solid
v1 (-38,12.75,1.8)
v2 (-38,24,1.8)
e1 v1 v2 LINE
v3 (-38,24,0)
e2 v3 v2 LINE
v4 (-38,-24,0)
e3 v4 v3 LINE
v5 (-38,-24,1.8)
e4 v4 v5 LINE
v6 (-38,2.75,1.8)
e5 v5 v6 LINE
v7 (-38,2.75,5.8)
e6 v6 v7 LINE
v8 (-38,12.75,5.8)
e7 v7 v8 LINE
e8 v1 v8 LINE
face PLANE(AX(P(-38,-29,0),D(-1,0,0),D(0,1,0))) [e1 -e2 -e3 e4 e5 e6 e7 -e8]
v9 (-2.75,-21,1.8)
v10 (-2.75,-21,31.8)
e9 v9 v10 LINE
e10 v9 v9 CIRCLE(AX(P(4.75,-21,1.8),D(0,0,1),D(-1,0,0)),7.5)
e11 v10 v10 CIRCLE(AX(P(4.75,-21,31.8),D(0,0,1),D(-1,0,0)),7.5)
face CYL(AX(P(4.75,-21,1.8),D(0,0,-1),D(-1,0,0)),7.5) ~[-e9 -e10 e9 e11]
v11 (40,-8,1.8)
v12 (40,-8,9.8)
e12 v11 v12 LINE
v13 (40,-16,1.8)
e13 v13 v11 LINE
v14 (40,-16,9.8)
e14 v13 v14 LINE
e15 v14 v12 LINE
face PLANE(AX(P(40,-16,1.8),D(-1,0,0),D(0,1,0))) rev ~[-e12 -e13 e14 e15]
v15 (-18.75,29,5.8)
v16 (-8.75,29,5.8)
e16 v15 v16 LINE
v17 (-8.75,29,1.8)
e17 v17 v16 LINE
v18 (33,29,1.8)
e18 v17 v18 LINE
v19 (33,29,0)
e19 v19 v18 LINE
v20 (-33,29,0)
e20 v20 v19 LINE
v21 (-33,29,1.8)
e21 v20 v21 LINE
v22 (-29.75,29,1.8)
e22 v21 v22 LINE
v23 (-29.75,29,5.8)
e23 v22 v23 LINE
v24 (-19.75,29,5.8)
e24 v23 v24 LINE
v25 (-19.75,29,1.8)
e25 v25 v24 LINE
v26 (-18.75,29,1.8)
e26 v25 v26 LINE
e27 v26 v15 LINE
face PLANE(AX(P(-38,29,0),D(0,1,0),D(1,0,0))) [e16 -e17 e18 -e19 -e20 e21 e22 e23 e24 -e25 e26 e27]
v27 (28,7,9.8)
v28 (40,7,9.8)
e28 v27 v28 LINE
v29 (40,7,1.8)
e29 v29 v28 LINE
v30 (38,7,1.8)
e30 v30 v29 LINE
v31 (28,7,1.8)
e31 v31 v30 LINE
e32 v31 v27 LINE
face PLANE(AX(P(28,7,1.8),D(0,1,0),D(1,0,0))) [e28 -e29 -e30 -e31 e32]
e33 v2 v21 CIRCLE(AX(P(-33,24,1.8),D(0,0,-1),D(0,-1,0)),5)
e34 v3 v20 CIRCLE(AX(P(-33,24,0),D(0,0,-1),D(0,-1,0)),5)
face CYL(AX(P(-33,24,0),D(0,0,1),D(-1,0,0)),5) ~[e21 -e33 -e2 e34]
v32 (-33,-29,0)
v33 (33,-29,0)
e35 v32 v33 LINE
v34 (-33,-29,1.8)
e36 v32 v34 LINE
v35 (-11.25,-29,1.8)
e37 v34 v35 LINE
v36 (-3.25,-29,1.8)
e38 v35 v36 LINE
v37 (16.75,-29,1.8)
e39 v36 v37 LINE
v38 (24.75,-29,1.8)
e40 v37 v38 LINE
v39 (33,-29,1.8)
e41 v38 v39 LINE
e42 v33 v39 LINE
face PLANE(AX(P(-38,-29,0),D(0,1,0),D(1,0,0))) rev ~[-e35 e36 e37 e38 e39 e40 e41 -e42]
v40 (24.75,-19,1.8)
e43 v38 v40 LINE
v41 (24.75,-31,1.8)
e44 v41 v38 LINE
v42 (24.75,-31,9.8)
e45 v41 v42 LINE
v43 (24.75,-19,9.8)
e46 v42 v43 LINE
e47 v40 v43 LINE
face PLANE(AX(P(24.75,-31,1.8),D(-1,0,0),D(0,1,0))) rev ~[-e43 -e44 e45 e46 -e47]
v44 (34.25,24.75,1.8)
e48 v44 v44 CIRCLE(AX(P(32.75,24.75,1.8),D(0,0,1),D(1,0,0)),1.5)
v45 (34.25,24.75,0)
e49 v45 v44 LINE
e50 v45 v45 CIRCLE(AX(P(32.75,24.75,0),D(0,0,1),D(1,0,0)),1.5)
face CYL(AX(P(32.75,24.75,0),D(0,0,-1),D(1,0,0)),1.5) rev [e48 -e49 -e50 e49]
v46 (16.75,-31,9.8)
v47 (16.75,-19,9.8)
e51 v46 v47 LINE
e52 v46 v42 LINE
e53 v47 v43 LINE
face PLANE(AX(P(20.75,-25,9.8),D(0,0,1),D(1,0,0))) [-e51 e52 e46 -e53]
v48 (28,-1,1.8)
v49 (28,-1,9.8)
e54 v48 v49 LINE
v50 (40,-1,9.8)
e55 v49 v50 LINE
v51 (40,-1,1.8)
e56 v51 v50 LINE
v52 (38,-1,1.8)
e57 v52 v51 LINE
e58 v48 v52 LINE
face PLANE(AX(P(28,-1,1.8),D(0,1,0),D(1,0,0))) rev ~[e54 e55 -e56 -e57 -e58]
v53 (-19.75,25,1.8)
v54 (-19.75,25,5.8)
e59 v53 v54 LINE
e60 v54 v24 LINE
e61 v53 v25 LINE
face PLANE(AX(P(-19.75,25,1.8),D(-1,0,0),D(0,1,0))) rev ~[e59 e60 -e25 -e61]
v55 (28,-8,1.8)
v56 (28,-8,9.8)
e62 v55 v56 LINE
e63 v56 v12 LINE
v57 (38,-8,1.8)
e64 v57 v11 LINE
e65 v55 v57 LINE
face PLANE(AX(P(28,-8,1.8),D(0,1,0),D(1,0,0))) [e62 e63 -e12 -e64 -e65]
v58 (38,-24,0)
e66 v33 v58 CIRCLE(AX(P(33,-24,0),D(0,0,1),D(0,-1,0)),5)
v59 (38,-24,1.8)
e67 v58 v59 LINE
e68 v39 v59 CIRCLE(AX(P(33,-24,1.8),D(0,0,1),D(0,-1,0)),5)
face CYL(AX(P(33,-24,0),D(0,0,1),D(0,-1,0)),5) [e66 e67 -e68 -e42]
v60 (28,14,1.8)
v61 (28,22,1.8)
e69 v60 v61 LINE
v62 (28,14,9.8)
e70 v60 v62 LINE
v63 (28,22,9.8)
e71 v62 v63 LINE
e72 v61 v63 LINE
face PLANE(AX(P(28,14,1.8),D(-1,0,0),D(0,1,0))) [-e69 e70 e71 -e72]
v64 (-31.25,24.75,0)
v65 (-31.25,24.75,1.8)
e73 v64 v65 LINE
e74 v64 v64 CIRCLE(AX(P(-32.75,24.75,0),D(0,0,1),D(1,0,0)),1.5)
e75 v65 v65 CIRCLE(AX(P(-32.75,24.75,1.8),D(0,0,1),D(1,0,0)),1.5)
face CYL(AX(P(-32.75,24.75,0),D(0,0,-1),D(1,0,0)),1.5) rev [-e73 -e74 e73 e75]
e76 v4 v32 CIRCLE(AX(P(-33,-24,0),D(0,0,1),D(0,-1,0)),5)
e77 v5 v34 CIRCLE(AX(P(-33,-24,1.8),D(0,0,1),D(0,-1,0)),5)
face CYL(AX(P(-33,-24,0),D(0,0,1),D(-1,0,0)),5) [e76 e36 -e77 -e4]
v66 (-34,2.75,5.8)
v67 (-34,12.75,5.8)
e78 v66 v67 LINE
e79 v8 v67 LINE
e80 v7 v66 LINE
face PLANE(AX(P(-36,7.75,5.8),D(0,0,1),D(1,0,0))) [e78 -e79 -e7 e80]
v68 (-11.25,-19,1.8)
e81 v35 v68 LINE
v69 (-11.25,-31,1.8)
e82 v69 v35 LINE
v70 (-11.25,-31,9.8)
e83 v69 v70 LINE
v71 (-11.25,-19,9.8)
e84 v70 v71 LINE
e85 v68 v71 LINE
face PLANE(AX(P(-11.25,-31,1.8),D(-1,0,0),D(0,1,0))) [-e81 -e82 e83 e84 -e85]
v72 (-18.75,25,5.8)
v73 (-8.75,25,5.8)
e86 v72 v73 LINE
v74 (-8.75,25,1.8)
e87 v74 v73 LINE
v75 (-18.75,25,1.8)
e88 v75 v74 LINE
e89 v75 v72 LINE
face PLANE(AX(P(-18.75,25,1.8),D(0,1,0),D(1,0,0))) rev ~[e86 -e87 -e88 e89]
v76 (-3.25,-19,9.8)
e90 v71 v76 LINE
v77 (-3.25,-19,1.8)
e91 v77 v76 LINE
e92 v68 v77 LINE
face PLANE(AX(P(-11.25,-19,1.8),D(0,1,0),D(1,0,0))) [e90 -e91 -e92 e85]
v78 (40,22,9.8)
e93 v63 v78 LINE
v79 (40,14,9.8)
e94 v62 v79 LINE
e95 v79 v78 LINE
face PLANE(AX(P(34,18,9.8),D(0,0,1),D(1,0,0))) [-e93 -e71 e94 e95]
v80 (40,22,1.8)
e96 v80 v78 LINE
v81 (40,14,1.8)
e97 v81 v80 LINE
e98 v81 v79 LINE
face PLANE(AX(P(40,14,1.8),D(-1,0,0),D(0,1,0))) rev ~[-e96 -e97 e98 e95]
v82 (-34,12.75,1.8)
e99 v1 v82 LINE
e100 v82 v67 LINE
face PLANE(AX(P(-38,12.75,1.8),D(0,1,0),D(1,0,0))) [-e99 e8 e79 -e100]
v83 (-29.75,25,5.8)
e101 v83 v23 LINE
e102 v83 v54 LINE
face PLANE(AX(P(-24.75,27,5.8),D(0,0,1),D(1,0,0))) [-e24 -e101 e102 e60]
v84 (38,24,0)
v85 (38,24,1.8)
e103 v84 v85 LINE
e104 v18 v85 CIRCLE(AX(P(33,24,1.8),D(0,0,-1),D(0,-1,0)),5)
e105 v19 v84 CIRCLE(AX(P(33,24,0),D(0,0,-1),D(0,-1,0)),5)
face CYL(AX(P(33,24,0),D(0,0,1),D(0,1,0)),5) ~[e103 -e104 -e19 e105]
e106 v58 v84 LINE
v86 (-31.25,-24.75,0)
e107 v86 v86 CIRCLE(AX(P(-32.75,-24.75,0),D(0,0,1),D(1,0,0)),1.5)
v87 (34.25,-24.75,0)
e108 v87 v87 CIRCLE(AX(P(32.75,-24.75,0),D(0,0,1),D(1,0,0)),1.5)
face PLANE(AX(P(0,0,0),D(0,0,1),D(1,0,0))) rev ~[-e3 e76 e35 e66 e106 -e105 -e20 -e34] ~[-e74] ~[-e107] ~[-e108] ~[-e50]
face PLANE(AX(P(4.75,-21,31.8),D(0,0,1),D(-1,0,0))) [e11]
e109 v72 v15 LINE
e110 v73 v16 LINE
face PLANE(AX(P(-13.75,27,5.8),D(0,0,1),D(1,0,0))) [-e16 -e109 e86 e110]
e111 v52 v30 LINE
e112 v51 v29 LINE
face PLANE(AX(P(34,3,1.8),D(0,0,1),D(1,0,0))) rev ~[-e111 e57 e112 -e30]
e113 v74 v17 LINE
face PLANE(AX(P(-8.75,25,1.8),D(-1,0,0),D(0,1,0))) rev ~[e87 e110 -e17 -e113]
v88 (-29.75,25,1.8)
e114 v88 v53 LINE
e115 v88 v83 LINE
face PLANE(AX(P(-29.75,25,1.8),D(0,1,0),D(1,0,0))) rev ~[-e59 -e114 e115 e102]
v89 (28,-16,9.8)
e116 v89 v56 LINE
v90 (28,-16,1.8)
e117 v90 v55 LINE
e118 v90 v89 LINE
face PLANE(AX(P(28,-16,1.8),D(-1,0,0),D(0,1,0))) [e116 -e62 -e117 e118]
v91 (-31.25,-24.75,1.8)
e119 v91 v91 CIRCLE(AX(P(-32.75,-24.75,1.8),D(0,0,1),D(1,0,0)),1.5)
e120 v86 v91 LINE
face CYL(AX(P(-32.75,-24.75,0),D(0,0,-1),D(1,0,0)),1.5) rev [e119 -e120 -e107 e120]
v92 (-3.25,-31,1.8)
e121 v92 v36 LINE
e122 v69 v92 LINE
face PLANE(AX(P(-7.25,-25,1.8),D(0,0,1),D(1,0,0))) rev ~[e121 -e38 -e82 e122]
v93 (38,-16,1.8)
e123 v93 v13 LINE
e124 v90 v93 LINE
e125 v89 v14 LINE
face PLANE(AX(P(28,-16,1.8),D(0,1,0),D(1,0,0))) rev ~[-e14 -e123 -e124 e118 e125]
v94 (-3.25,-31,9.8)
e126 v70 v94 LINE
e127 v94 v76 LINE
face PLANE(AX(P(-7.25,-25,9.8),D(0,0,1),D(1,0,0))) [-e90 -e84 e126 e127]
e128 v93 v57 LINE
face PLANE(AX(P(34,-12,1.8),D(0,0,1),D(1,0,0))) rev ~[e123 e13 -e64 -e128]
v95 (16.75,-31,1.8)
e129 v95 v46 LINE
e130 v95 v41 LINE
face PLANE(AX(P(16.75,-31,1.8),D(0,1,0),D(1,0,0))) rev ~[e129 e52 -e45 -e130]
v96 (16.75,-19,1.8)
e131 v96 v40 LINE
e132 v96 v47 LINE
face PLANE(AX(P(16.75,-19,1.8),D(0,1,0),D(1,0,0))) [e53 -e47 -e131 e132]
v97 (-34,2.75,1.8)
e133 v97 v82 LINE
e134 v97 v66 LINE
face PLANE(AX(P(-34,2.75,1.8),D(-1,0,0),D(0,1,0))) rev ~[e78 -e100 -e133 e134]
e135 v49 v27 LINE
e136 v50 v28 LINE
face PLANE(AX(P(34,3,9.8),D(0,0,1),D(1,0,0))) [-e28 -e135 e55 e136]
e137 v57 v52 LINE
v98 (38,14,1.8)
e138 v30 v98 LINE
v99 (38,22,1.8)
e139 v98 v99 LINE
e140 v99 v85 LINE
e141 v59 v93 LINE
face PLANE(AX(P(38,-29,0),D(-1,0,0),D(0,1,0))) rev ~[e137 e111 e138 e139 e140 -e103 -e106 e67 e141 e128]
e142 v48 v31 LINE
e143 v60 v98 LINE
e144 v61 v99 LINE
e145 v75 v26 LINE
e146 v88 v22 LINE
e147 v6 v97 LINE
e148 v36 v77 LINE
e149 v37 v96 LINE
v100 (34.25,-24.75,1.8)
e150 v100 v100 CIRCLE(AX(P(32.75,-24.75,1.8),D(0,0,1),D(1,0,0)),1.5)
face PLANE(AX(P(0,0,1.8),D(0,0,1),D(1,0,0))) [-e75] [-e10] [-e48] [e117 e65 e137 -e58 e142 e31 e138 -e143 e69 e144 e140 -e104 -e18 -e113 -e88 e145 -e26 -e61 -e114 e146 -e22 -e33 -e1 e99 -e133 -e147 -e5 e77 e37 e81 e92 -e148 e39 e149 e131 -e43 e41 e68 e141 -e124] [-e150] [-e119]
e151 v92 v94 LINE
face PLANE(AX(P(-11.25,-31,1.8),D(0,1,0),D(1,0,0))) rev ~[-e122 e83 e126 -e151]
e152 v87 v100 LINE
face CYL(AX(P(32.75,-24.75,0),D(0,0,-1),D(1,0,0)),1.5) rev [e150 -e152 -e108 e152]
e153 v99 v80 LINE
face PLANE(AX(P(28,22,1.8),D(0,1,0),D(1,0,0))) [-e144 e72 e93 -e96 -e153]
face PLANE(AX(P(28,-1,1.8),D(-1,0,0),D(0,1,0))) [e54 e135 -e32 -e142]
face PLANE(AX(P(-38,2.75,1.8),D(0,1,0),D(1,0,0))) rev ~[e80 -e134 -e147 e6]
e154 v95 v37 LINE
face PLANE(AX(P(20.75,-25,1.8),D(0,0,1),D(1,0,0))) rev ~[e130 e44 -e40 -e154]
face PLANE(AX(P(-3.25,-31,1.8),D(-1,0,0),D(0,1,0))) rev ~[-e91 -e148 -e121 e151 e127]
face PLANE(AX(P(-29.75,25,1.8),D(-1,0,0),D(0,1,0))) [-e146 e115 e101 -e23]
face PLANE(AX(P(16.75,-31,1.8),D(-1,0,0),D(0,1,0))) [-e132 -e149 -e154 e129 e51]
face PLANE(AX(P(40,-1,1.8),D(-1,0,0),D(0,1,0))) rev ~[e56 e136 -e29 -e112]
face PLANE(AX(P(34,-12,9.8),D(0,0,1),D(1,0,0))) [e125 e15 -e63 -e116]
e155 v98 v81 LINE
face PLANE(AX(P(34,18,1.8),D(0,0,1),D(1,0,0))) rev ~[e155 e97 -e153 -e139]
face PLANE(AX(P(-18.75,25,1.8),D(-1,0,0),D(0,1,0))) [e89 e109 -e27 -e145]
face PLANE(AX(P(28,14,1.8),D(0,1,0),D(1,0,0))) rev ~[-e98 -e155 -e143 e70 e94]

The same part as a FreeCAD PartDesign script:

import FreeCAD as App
import Part
import Sketcher
from FreeCAD import Vector
Q = App.Units.Quantity


def edges_at(feature, points):
    """Names of the edges that pass closest to the given points."""
    edges = feature.Shape.Edges
    near = lambda p: min(range(len(edges)), key=lambda i: edges[i].distToShape(Part.Vertex(*p))[0])
    return sorted({f"Edge{near(p) + 1}" for p in points})

doc = App.newDocument("Part")
body = doc.addObject("PartDesign::Body", "Body")

sketch1 = doc.addObject("Sketcher::SketchObject", "Sketch")
body.addObject(sketch1)
sketch1.AttachmentSupport = (doc.XY_Plane, [""])
sketch1.MapMode = "FlatFace"
sketch1.addGeometry([
    Part.LineSegment(Vector(-38, 29, 0), Vector(-38, -29, 0)),
    Part.LineSegment(Vector(-38, -29, 0), Vector(38, -29, 0)),
    Part.LineSegment(Vector(38, -29, 0), Vector(38, 29, 0)),
    Part.LineSegment(Vector(38, 29, 0), Vector(-38, 29, 0)),
    Part.Circle(Vector(-32.75, -24.75, 0), Vector(0, 0, 1), 1.5),
    Part.Circle(Vector(32.75, -24.75, 0), Vector(0, 0, 1), 1.5),
    Part.Circle(Vector(-32.75, 24.75, 0), Vector(0, 0, 1), 1.5),
    Part.Circle(Vector(32.75, 24.75, 0), Vector(0, 0, 1), 1.5),
], False)
sketch1.addConstraint([
    Sketcher.Constraint("Coincident", 0, 2, 1, 1),
    Sketcher.Constraint("Coincident", 1, 2, 2, 1),
    Sketcher.Constraint("Coincident", 2, 2, 3, 1),
    Sketcher.Constraint("Coincident", 3, 2, 0, 1),
    Sketcher.Constraint("Vertical", 0),
    Sketcher.Constraint("Horizontal", 1),
    Sketcher.Constraint("Vertical", 2),
    Sketcher.Constraint("Horizontal", 3),
    Sketcher.Constraint("Equal", 4, 5),
    Sketcher.Constraint("Equal", 5, 6),
    Sketcher.Constraint("Equal", 6, 7),
    Sketcher.Constraint("Symmetric", 5, 3, 6, 3, -1, 1),
    Sketcher.Constraint("Symmetric", 4, 3, 7, 3, -1, 1),
    Sketcher.Constraint("Symmetric", 0, 2, 2, 2, -1, 1),
    Sketcher.Constraint("Symmetric", 4, 3, 5, 3, -2),
    Sketcher.Constraint("Diameter", 4, Q("3 mm")),
    Sketcher.Constraint("DistanceX", 1, 1, 1, 2, Q("76 mm")),
    Sketcher.Constraint("DistanceY", 0, 2, 0, 1, Q("58 mm")),
    Sketcher.Constraint("DistanceX", 4, 3, 5, 3, Q("65.5 mm")),
    Sketcher.Constraint("DistanceY", 4, 3, 6, 3, Q("49.5 mm")),
])
pad1 = doc.addObject("PartDesign::Pad", "Pad")
body.addObject(pad1)
pad1.Profile = sketch1
pad1.Length = 1.8

sketch2 = doc.addObject("Sketcher::SketchObject", "Sketch001")
body.addObject(sketch2)
sketch2.AttachmentSupport = (doc.XY_Plane, [""])
sketch2.MapMode = "FlatFace"
sketch2.AttachmentOffset = App.Placement(Vector(0, 0, 1.8), App.Rotation())
sketch2.addGeometry([
    Part.LineSegment(Vector(28, 22, 0), Vector(28, 14, 0)),
    Part.LineSegment(Vector(28, 14, 0), Vector(40, 14, 0)),
    Part.LineSegment(Vector(40, 14, 0), Vector(40, 22, 0)),
    Part.LineSegment(Vector(40, 22, 0), Vector(28, 22, 0)),
    Part.LineSegment(Vector(28, 7, 0), Vector(28, -1, 0)),
    Part.LineSegment(Vector(28, -1, 0), Vector(40, -1, 0)),
    Part.LineSegment(Vector(40, -1, 0), Vector(40, 7, 0)),
    Part.LineSegment(Vector(40, 7, 0), Vector(28, 7, 0)),
    Part.LineSegment(Vector(28, -8, 0), Vector(28, -16, 0)),
    Part.LineSegment(Vector(28, -16, 0), Vector(40, -16, 0)),
    Part.LineSegment(Vector(40, -16, 0), Vector(40, -8, 0)),
    Part.LineSegment(Vector(40, -8, 0), Vector(28, -8, 0)),
    Part.LineSegment(Vector(-11.25, -19, 0), Vector(-11.25, -31, 0)),
    Part.LineSegment(Vector(-11.25, -31, 0), Vector(-3.25, -31, 0)),
    Part.LineSegment(Vector(-3.25, -31, 0), Vector(-3.25, -19, 0)),
    Part.LineSegment(Vector(-3.25, -19, 0), Vector(-11.25, -19, 0)),
    Part.LineSegment(Vector(16.75, -19, 0), Vector(16.75, -31, 0)),
    Part.LineSegment(Vector(16.75, -31, 0), Vector(24.75, -31, 0)),
    Part.LineSegment(Vector(24.75, -31, 0), Vector(24.75, -19, 0)),
    Part.LineSegment(Vector(24.75, -19, 0), Vector(16.75, -19, 0)),
], False)
sketch2.addConstraint([
    Sketcher.Constraint("Coincident", 0, 2, 1, 1),
    Sketcher.Constraint("Coincident", 1, 2, 2, 1),
    Sketcher.Constraint("Coincident", 2, 2, 3, 1),
    Sketcher.Constraint("Coincident", 3, 2, 0, 1),
    Sketcher.Constraint("Coincident", 4, 2, 5, 1),
    Sketcher.Constraint("Coincident", 5, 2, 6, 1),
    Sketcher.Constraint("Coincident", 6, 2, 7, 1),
    Sketcher.Constraint("Coincident", 7, 2, 4, 1),
    Sketcher.Constraint("Coincident", 8, 2, 9, 1),
    Sketcher.Constraint("Coincident", 9, 2, 10, 1),
    Sketcher.Constraint("Coincident", 10, 2, 11, 1),
    Sketcher.Constraint("Coincident", 11, 2, 8, 1),
    Sketcher.Constraint("Coincident", 12, 2, 13, 1),
    Sketcher.Constraint("Coincident", 13, 2, 14, 1),
    Sketcher.Constraint("Coincident", 14, 2, 15, 1),
    Sketcher.Constraint("Coincident", 15, 2, 12, 1),
    Sketcher.Constraint("Coincident", 16, 2, 17, 1),
    Sketcher.Constraint("Coincident", 17, 2, 18, 1),
    Sketcher.Constraint("Coincident", 18, 2, 19, 1),
    Sketcher.Constraint("Coincident", 19, 2, 16, 1),
    Sketcher.Constraint("Vertical", 0),
    Sketcher.Constraint("Horizontal", 1),
    Sketcher.Constraint("Vertical", 2),
    Sketcher.Constraint("Horizontal", 3),
    Sketcher.Constraint("Vertical", 4),
    Sketcher.Constraint("Horizontal", 5),
    Sketcher.Constraint("Vertical", 6),
    Sketcher.Constraint("Horizontal", 7),
    Sketcher.Constraint("Vertical", 8),
    Sketcher.Constraint("Horizontal", 9),
    Sketcher.Constraint("Vertical", 10),
    Sketcher.Constraint("Horizontal", 11),
    Sketcher.Constraint("Vertical", 12),
    Sketcher.Constraint("Horizontal", 13),
    Sketcher.Constraint("Vertical", 14),
    Sketcher.Constraint("Horizontal", 15),
    Sketcher.Constraint("Vertical", 16),
    Sketcher.Constraint("Horizontal", 17),
    Sketcher.Constraint("Vertical", 18),
    Sketcher.Constraint("Horizontal", 19),
    Sketcher.Constraint("Horizontal", 13, 2, 16, 2),
    Sketcher.Constraint("Horizontal", 15, 2, 18, 2),
    Sketcher.Constraint("Vertical", 3, 2, 4, 2),
    Sketcher.Constraint("Vertical", 2, 2, 5, 2),
    Sketcher.Constraint("Vertical", 7, 2, 8, 2),
    Sketcher.Constraint("Vertical", 6, 2, 9, 2),
    Sketcher.Constraint("Equal", 15, 17),
    Sketcher.Constraint("Equal", 19, 0),
    Sketcher.Constraint("Equal", 2, 4),
    Sketcher.Constraint("Equal", 6, 8),
    Sketcher.Constraint("Equal", 11, 12),
    Sketcher.Constraint("DistanceX", 1, 1, 1, 2, Q("12 mm")),
    Sketcher.Constraint("DistanceX", 13, 1, 13, 2, Q("8 mm")),
    Sketcher.Constraint("DistanceX", -1, 1, 0, 2, Q("28 mm")),
    Sketcher.Constraint("DistanceY", -1, 1, 0, 2, Q("14 mm")),
    Sketcher.Constraint("DistanceY", 4, 2, -1, 1, Q("1 mm")),
    Sketcher.Constraint("DistanceY", 8, 2, -1, 1, Q("16 mm")),
    Sketcher.Constraint("DistanceY", 12, 2, -1, 1, Q("31 mm")),
    Sketcher.Constraint("DistanceX", 13, 2, 16, 2, Q("20 mm")),
    Sketcher.Constraint("DistanceX", 12, 2, -1, 1, Q("11.25 mm")),
])
pad2 = doc.addObject("PartDesign::Pad", "Pad001")
body.addObject(pad2)
pad2.Profile = sketch2
pad2.Length = 8

sketch3 = doc.addObject("Sketcher::SketchObject", "Sketch002")
body.addObject(sketch3)
sketch3.AttachmentSupport = (doc.XY_Plane, [""])
sketch3.MapMode = "FlatFace"
sketch3.AttachmentOffset = App.Placement(Vector(0, 0, 1.8), App.Rotation())
sketch3.addGeometry([
    Part.LineSegment(Vector(-29.75, 29, 0), Vector(-29.75, 25, 0)),
    Part.LineSegment(Vector(-29.75, 25, 0), Vector(-19.75, 25, 0)),
    Part.LineSegment(Vector(-19.75, 25, 0), Vector(-19.75, 29, 0)),
    Part.LineSegment(Vector(-19.75, 29, 0), Vector(-29.75, 29, 0)),
    Part.LineSegment(Vector(-18.75, 29, 0), Vector(-18.75, 25, 0)),
    Part.LineSegment(Vector(-18.75, 25, 0), Vector(-8.75, 25, 0)),
    Part.LineSegment(Vector(-8.75, 25, 0), Vector(-8.75, 29, 0)),
    Part.LineSegment(Vector(-8.75, 29, 0), Vector(-18.75, 29, 0)),
    Part.LineSegment(Vector(-38, 12.75, 0), Vector(-38, 2.75, 0)),
    Part.LineSegment(Vector(-38, 2.75, 0), Vector(-34, 2.75, 0)),
    Part.LineSegment(Vector(-34, 2.75, 0), Vector(-34, 12.75, 0)),
    Part.LineSegment(Vector(-34, 12.75, 0), Vector(-38, 12.75, 0)),
], False)
sketch3.addConstraint([
    Sketcher.Constraint("Coincident", 0, 2, 1, 1),
    Sketcher.Constraint("Coincident", 1, 2, 2, 1),
    Sketcher.Constraint("Coincident", 2, 2, 3, 1),
    Sketcher.Constraint("Coincident", 3, 2, 0, 1),
    Sketcher.Constraint("Coincident", 4, 2, 5, 1),
    Sketcher.Constraint("Coincident", 5, 2, 6, 1),
    Sketcher.Constraint("Coincident", 6, 2, 7, 1),
    Sketcher.Constraint("Coincident", 7, 2, 4, 1),
    Sketcher.Constraint("Coincident", 8, 2, 9, 1),
    Sketcher.Constraint("Coincident", 9, 2, 10, 1),
    Sketcher.Constraint("Coincident", 10, 2, 11, 1),
    Sketcher.Constraint("Coincident", 11, 2, 8, 1),
    Sketcher.Constraint("Vertical", 0),
    Sketcher.Constraint("Horizontal", 1),
    Sketcher.Constraint("Vertical", 2),
    Sketcher.Constraint("Horizontal", 3),
    Sketcher.Constraint("Vertical", 4),
    Sketcher.Constraint("Horizontal", 5),
    Sketcher.Constraint("Vertical", 6),
    Sketcher.Constraint("Horizontal", 7),
    Sketcher.Constraint("Vertical", 8),
    Sketcher.Constraint("Horizontal", 9),
    Sketcher.Constraint("Vertical", 10),
    Sketcher.Constraint("Horizontal", 11),
    Sketcher.Constraint("Horizontal", 1, 2, 4, 2),
    Sketcher.Constraint("Horizontal", 3, 2, 6, 2),
    Sketcher.Constraint("Equal", 3, 5),
    Sketcher.Constraint("Equal", 11, 0),
    Sketcher.Constraint("Equal", 7, 8),
    Sketcher.Constraint("DistanceX", 1, 1, 1, 2, Q("10 mm")),
    Sketcher.Constraint("DistanceX", 9, 1, 9, 2, Q("4 mm")),
    Sketcher.Constraint("DistanceY", -1, 1, 0, 2, Q("25 mm")),
    Sketcher.Constraint("DistanceX", 8, 2, -1, 1, Q("38 mm")),
    Sketcher.Constraint("DistanceX", 1, 2, 4, 2, Q("1 mm")),
    Sketcher.Constraint("DistanceX", 0, 2, -1, 1, Q("29.75 mm")),
    Sketcher.Constraint("DistanceY", -1, 1, 8, 2, Q("2.75 mm")),
])
pad3 = doc.addObject("PartDesign::Pad", "Pad002")
body.addObject(pad3)
pad3.Profile = sketch3
pad3.Length = 4

sketch4 = doc.addObject("Sketcher::SketchObject", "Sketch003")
body.addObject(sketch4)
sketch4.AttachmentSupport = (doc.XY_Plane, [""])
sketch4.MapMode = "FlatFace"
sketch4.AttachmentOffset = App.Placement(Vector(0, 0, 1.8), App.Rotation())
sketch4.addGeometry(Part.Circle(Vector(4.75, -21, 0), Vector(0, 0, 1), 7.5), False)
sketch4.addConstraint([
    Sketcher.Constraint("Diameter", 0, Q("15 mm")),
    Sketcher.Constraint("DistanceY", 0, 3, -1, 1, Q("21 mm")),
    Sketcher.Constraint("DistanceX", -1, 1, 0, 3, Q("4.75 mm")),
])
pad4 = doc.addObject("PartDesign::Pad", "Pad003")
body.addObject(pad4)
pad4.Profile = sketch4
pad4.Length = 30
doc.recompute()

fillet = doc.addObject("PartDesign::Fillet", "Fillet")
body.addObject(fillet)
fillet.Base = (pad4, edges_at(pad4, [
    (38, -29, 0.9),
    (-38, -29, 0.9),
    (-38, 29, 0.9),
    (38, 29, 0.9),
]))
fillet.Radius = 5

doc.recompute()
